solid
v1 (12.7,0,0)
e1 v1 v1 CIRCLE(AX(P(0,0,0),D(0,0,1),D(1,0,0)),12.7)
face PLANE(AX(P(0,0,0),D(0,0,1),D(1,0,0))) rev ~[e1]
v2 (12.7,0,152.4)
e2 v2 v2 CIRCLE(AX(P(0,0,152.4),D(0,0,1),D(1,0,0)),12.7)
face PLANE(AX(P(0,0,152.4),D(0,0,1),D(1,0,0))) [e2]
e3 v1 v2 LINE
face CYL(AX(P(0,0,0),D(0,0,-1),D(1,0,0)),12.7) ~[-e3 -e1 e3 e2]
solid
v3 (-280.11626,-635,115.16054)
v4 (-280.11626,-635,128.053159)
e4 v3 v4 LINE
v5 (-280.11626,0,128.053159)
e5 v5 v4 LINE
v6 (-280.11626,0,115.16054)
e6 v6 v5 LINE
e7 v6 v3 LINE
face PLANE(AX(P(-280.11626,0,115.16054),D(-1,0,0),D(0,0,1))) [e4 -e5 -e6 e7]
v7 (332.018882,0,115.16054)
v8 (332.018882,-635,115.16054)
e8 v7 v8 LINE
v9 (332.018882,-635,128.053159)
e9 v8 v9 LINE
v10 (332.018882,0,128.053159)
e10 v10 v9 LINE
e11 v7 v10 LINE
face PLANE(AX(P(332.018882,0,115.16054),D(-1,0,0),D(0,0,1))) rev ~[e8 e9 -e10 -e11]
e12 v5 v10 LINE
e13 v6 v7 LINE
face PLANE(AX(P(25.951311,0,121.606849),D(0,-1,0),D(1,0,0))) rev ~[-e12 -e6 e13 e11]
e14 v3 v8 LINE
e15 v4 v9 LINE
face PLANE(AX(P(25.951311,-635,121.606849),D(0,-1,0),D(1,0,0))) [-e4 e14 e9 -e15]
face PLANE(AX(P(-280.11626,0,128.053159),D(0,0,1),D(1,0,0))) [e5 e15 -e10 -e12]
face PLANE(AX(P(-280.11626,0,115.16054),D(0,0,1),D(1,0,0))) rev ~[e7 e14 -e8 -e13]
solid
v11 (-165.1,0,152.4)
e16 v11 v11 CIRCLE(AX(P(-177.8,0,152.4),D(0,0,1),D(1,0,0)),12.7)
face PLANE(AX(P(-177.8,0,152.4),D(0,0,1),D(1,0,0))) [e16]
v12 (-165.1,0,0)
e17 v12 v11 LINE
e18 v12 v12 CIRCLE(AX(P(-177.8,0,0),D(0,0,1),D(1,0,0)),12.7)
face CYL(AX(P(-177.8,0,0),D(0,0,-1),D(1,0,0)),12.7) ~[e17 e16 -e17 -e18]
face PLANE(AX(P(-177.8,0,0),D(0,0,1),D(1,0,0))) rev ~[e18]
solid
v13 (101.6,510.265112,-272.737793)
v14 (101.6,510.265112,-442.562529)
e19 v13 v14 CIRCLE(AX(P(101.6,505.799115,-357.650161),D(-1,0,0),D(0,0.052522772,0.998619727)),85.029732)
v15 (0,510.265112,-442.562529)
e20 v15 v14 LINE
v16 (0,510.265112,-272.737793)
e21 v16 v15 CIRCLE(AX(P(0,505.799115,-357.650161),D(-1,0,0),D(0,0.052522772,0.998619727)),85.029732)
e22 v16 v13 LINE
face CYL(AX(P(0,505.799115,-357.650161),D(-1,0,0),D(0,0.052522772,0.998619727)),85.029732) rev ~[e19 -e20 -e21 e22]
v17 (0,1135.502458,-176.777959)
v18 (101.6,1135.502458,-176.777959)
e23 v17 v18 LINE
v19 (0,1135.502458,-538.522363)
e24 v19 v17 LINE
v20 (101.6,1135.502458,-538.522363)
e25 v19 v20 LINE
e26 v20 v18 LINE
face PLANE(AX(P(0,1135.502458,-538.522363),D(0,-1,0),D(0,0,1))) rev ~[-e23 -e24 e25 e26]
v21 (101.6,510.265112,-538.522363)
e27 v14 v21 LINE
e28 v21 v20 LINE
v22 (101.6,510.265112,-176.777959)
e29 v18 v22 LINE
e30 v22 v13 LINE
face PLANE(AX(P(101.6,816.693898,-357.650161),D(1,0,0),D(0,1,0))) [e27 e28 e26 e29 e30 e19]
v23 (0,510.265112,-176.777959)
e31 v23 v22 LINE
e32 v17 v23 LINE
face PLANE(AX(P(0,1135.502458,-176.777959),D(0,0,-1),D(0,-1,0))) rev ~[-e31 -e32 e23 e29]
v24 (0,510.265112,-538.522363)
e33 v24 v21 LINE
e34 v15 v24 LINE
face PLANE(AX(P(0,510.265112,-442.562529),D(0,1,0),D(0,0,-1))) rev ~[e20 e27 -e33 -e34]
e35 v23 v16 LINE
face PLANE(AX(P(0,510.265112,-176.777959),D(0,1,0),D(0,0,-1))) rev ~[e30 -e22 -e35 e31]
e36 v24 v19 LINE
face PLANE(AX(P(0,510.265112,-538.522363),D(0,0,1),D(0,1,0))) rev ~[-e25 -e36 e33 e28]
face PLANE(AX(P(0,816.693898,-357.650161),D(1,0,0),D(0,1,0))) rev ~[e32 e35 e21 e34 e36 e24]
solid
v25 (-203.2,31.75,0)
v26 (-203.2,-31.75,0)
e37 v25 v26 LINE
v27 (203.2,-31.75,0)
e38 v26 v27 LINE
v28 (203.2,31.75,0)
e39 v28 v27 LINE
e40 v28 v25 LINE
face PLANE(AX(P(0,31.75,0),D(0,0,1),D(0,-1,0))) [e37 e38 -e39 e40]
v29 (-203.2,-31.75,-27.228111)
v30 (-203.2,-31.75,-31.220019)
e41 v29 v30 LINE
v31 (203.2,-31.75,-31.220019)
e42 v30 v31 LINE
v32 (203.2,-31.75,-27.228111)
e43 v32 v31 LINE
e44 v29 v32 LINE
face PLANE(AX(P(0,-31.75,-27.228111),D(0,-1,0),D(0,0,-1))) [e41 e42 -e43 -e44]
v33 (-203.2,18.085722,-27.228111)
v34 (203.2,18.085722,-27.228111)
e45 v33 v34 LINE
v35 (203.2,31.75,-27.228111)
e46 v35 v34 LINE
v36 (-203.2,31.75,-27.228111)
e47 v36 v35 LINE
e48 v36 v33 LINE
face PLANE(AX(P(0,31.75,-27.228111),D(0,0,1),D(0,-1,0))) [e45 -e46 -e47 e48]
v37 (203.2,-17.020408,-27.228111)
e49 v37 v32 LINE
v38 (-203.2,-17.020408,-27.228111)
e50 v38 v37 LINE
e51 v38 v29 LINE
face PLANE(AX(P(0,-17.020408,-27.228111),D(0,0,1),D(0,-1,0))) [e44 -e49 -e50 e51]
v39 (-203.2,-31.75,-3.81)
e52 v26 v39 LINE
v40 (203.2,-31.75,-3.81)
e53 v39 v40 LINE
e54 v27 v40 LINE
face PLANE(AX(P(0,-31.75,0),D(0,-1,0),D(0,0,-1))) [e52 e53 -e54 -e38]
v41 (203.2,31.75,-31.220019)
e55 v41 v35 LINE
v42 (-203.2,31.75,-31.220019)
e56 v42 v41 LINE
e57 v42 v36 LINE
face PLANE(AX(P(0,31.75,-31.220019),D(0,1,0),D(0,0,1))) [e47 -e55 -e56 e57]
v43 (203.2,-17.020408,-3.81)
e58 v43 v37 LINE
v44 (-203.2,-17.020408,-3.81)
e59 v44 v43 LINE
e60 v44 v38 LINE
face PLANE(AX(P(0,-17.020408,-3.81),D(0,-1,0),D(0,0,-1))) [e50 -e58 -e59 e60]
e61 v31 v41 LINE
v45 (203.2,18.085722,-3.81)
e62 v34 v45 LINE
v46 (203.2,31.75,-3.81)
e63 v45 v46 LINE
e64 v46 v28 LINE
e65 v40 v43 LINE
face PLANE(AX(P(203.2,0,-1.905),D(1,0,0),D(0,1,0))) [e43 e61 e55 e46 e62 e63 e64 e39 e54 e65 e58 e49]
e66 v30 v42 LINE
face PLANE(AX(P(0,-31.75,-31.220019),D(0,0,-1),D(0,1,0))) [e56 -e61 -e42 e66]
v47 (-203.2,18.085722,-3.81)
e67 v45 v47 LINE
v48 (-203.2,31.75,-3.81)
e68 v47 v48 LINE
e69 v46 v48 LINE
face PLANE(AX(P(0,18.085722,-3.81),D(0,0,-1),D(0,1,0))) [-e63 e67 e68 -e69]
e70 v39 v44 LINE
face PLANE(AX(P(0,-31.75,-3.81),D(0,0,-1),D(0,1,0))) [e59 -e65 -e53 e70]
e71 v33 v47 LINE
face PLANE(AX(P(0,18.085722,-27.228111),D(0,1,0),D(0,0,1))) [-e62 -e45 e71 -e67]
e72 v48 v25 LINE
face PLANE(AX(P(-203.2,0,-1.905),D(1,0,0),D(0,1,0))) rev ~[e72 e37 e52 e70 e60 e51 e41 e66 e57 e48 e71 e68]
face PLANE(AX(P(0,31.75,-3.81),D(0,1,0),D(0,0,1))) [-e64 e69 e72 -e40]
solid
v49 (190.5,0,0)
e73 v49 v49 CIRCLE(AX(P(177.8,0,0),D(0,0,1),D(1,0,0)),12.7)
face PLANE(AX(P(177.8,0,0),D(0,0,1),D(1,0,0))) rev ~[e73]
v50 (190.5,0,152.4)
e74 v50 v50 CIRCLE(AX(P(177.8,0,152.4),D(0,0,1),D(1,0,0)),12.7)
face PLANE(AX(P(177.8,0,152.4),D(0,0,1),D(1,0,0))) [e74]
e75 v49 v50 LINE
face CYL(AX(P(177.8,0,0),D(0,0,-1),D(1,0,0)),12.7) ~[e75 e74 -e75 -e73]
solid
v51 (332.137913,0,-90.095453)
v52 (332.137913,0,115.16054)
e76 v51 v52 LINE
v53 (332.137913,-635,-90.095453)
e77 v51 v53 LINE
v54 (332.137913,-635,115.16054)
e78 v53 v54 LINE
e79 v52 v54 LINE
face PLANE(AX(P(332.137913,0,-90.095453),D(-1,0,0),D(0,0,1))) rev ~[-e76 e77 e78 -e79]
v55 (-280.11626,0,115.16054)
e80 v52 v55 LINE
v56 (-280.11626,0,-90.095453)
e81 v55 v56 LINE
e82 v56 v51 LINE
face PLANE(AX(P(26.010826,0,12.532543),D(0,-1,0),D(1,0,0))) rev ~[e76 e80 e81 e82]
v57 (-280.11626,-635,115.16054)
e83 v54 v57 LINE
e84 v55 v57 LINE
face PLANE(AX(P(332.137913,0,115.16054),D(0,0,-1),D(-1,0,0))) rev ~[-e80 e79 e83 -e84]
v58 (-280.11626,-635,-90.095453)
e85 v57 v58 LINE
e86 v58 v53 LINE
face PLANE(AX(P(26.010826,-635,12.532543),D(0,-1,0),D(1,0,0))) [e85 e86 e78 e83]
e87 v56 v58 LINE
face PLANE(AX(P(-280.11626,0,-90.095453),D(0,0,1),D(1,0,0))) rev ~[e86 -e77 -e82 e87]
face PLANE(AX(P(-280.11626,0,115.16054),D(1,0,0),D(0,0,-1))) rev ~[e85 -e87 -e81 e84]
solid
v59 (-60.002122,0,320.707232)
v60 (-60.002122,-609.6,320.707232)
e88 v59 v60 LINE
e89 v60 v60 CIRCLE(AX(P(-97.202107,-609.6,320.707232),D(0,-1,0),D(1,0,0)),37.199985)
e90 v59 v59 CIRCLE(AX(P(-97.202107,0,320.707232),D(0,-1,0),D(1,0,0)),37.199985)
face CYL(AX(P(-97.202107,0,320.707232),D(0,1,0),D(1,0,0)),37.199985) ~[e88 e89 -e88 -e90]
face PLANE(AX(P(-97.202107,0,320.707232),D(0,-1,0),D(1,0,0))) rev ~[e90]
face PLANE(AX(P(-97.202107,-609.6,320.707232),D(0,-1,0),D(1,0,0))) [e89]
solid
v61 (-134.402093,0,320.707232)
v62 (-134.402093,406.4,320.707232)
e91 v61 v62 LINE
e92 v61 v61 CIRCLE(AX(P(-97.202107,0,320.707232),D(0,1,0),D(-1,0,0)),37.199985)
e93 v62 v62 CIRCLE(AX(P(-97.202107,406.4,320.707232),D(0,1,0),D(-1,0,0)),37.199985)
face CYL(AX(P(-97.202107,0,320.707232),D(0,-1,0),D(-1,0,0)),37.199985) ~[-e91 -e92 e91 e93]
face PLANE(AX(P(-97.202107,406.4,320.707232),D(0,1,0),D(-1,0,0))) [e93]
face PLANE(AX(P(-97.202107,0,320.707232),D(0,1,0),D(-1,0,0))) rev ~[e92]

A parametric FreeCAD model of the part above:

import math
import FreeCAD as App
import Part
import Sketcher
Q = App.Units.Quantity

doc = App.newDocument("Part")
params = doc.addObject("Spreadsheet::Sheet", "Params")
for row, (alias, value) in enumerate([
    ("sketch1_diameter", "1 in"),
    ("pad1_length", "6 in"),
    ("sketch2_diameter", "1 in"),
    ("pad2_length", "6 in"),
    ("sketch3_diameter", "1 in"),
    ("pad3_length", "6 in"),
    ("sketch4_width", "2.5 in"),
    ("sketch4_height", "0.15 in"),
    ("pad4_length", "16 in"),
    ("pad5_length", "24 in"),
    ("pad6_length", "16 in"),
    ("pad7_length", "25 in"),
    ("pad8_length", "25 in"),
    ("pad9_length", "4 in"),
], start=1):
    params.set(f"A{row}", alias)
    params.set(f"B{row}", "=" + value)
    params.setAlias(f"B{row}", alias)

body = doc.addObject("PartDesign::Body", "Body")

# Sketch on XY plane
sketch1 = doc.addObject("Sketcher::SketchObject", "Sketch")
body.addObject(sketch1)
sketch1.AttachmentSupport = (doc.XY_Plane, [""])
sketch1.MapMode = "FlatFace"
sketch1.addGeometry(Part.Circle(App.Vector(-178, 0, 0), App.Vector(0, 0, 1), 13), False)
sketch1.addConstraint(Sketcher.Constraint("PointOnObject", 0, 3, -1))
sketch1.addConstraint(Sketcher.Constraint("Diameter", 0, Q("1 in")))
sketch1.addConstraint(Sketcher.Constraint("DistanceX", 0, 3, -1, 1, Q("7 in")))
sketch1.setExpression("Constraints[1]", "Params.sketch1_diameter")
pad1 = doc.addObject("PartDesign::Pad", "Pad")
body.addObject(pad1)
pad1.Profile = sketch1
pad1.setExpression("Length", "Params.pad1_length")
body2 = doc.addObject("PartDesign::Body", "Body001")

# Sketch on XY plane
sketch2 = doc.addObject("Sketcher::SketchObject", "Sketch001")
body2.addObject(sketch2)
sketch2.AttachmentSupport = (doc.getObject("XY_Plane001"), [""])
sketch2.MapMode = "FlatFace"
sketch2.addGeometry(Part.Circle(App.Vector(178, 0, 0), App.Vector(0, 0, 1), 13), False)
sketch2.addConstraint(Sketcher.Constraint("PointOnObject", 0, 3, -1))
sketch2.addConstraint(Sketcher.Constraint("Diameter", 0, Q("1 in")))
sketch2.addConstraint(Sketcher.Constraint("DistanceX", -1, 1, 0, 3, Q("7 in")))
sketch2.setExpression("Constraints[1]", "Params.sketch2_diameter")
pad2 = doc.addObject("PartDesign::Pad", "Pad001")
body2.addObject(pad2)
pad2.Profile = sketch2
pad2.setExpression("Length", "Params.pad2_length")
body3 = doc.addObject("PartDesign::Body", "Body002")

# Sketch on XY plane
sketch3 = doc.addObject("Sketcher::SketchObject", "Sketch002")
body3.addObject(sketch3)
sketch3.AttachmentSupport = (doc.getObject("XY_Plane002"), [""])
sketch3.MapMode = "FlatFace"
sketch3.addGeometry(Part.Circle(App.Vector(0, 0, 0), App.Vector(0, 0, 1), 13), False)
sketch3.addConstraint(Sketcher.Constraint("Coincident", 0, 3, -1, 1))
sketch3.addConstraint(Sketcher.Constraint("Diameter", 0, Q("1 in")))
sketch3.setExpression("Constraints[1]", "Params.sketch3_diameter")
pad3 = doc.addObject("PartDesign::Pad", "Pad002")
body3.addObject(pad3)
pad3.Profile = sketch3
pad3.setExpression("Length", "Params.pad3_length")
body4 = doc.addObject("PartDesign::Body", "Body003")

# Sketch on YZ plane
sketch4 = doc.addObject("Sketcher::SketchObject", "Sketch003")
body4.addObject(sketch4)
sketch4.AttachmentSupport = (doc.getObject("YZ_Plane003"), [""])
sketch4.MapMode = "FlatFace"
sketch4.addGeometry(Part.LineSegment(App.Vector(31.8, 0, 0), App.Vector(-31.8, 0, 0)), False)
sketch4.addGeometry(Part.LineSegment(App.Vector(-31.8, 0, 0), App.Vector(-31.8, -3.8, 0)), False)
sketch4.addGeometry(Part.LineSegment(App.Vector(-31.8, -3.8, 0), App.Vector(-17, -3.8, 0)), False)
sketch4.addGeometry(Part.LineSegment(App.Vector(-17, -3.8, 0), App.Vector(-17, -27.2, 0)), False)
sketch4.addGeometry(Part.LineSegment(App.Vector(-17, -27.2, 0), App.Vector(-31.8, -27.2, 0)), False)
sketch4.addGeometry(Part.LineSegment(App.Vector(-31.8, -27.2, 0), App.Vector(-31.8, -31.2, 0)), False)
sketch4.addGeometry(Part.LineSegment(App.Vector(-31.8, -31.2, 0), App.Vector(31.8, -31.2, 0)), False)
sketch4.addGeometry(Part.LineSegment(App.Vector(31.8, -31.2, 0), App.Vector(31.8, -27.2, 0)), False)
sketch4.addGeometry(Part.LineSegment(App.Vector(31.8, -27.2, 0), App.Vector(18.1, -27.2, 0)), False)
sketch4.addGeometry(Part.LineSegment(App.Vector(18.1, -27.2, 0), App.Vector(18.1, -3.8, 0)), False)
sketch4.addGeometry(Part.LineSegment(App.Vector(18.1, -3.8, 0), App.Vector(31.8, -3.8, 0)), False)
sketch4.addGeometry(Part.LineSegment(App.Vector(31.8, -3.8, 0), App.Vector(31.8, 0, 0)), False)
sketch4.addConstraint(Sketcher.Constraint("Coincident", 0, 2, 1, 1))
sketch4.addConstraint(Sketcher.Constraint("Coincident", 1, 2, 2, 1))
sketch4.addConstraint(Sketcher.Constraint("Coincident", 2, 2, 3, 1))
sketch4.addConstraint(Sketcher.Constraint("Coincident", 3, 2, 4, 1))
sketch4.addConstraint(Sketcher.Constraint("Coincident", 4, 2, 5, 1))
sketch4.addConstraint(Sketcher.Constraint("Coincident", 5, 2, 6, 1))
sketch4.addConstraint(Sketcher.Constraint("Coincident", 6, 2, 7, 1))
sketch4.addConstraint(Sketcher.Constraint("Coincident", 7, 2, 8, 1))
sketch4.addConstraint(Sketcher.Constraint("Coincident", 8, 2, 9, 1))
sketch4.addConstraint(Sketcher.Constraint("Coincident", 9, 2, 10, 1))
sketch4.addConstraint(Sketcher.Constraint("Coincident", 10, 2, 11, 1))
sketch4.addConstraint(Sketcher.Constraint("Coincident", 11, 2, 0, 1))
sketch4.addConstraint(Sketcher.Constraint("Horizontal", 0))
sketch4.addConstraint(Sketcher.Constraint("Vertical", 1))
sketch4.addConstraint(Sketcher.Constraint("Horizontal", 2))
sketch4.addConstraint(Sketcher.Constraint("Vertical", 3))
sketch4.addConstraint(Sketcher.Constraint("Horizontal", 4))
sketch4.addConstraint(Sketcher.Constraint("Vertical", 5))
sketch4.addConstraint(Sketcher.Constraint("Horizontal", 6))
sketch4.addConstraint(Sketcher.Constraint("Vertical", 7))
sketch4.addConstraint(Sketcher.Constraint("Horizontal", 8))
sketch4.addConstraint(Sketcher.Constraint("Vertical", 9))
sketch4.addConstraint(Sketcher.Constraint("Horizontal", 10))
sketch4.addConstraint(Sketcher.Constraint("Vertical", 11))
sketch4.addConstraint(Sketcher.Constraint("Symmetric", 0, 2, 11, 2, -1, 1))
sketch4.addConstraint(Sketcher.Constraint("Symmetric", 4, 2, 7, 2, -2))
sketch4.addConstraint(Sketcher.Constraint("Horizontal", 2, 2, 9, 2))
sketch4.addConstraint(Sketcher.Constraint("Vertical", 1, 2, 4, 2))
sketch4.addConstraint(Sketcher.Constraint("DistanceX", 0, 2, 0, 1, Q("2.5 in")))
sketch4.addConstraint(Sketcher.Constraint("DistanceY", 1, 2, 1, 1, Q("0.15 in")))
sketch4.addConstraint(Sketcher.Constraint("DistanceX", 2, 1, 2, 2, Q("14.729592 mm")))
sketch4.addConstraint(Sketcher.Constraint("DistanceX", 8, 2, 8, 1, Q("13.664278 mm")))
sketch4.addConstraint(Sketcher.Constraint("DistanceY", 3, 2, 3, 1, Q("23.418111 mm")))
sketch4.addConstraint(Sketcher.Constraint("DistanceY", 5, 2, 5, 1, Q("3.991907 mm")))
sketch4.setExpression("Constraints[28]", "Params.sketch4_width")
sketch4.setExpression("Constraints[29]", "Params.sketch4_height")
pad4 = doc.addObject("PartDesign::Pad", "Pad003")
body4.addObject(pad4)
pad4.Profile = sketch4
pad4.setExpression("Length", "Params.pad4_length")
pad4.Midplane = True
body5 = doc.addObject("PartDesign::Body", "Body004")

# Sketch on XZ plane
sketch5 = doc.addObject("Sketcher::SketchObject", "Sketch004")
body5.addObject(sketch5)
sketch5.AttachmentSupport = (doc.getObject("XZ_Plane004"), [""])
sketch5.MapMode = "FlatFace"
sketch5.addGeometry(Part.Circle(App.Vector(-97, 321, 0), App.Vector(0, 0, 1), 37), False)
sketch5.addConstraint(Sketcher.Constraint("Diameter", 0, Q("74.399971 mm")))
sketch5.addConstraint(Sketcher.Constraint("DistanceY", -1, 1, 0, 3, Q("320.707232 mm")))
sketch5.addConstraint(Sketcher.Constraint("DistanceX", 0, 3, -1, 1, Q("97.202107 mm")))
pad5 = doc.addObject("PartDesign::Pad", "Pad004")
body5.addObject(pad5)
pad5.Profile = sketch5
pad5.setExpression("Length", "Params.pad5_length")
body6 = doc.addObject("PartDesign::Body", "Body005")

# Sketch on XZ plane
sketch6 = doc.addObject("Sketcher::SketchObject", "Sketch005")
body6.addObject(sketch6)
sketch6.AttachmentSupport = (doc.getObject("XZ_Plane005"), [""])
sketch6.MapMode = "FlatFace"
sketch6.addGeometry(Part.Circle(App.Vector(-97, 321, 0), App.Vector(0, 0, 1), 37), False)
sketch6.addConstraint(Sketcher.Constraint("Diameter", 0, Q("74.399971 mm")))
sketch6.addConstraint(Sketcher.Constraint("DistanceY", -1, 1, 0, 3, Q("320.707232 mm")))
sketch6.addConstraint(Sketcher.Constraint("DistanceX", 0, 3, -1, 1, Q("97.202107 mm")))
pad6 = doc.addObject("PartDesign::Pad", "Pad005")
body6.addObject(pad6)
pad6.Profile = sketch6
pad6.setExpression("Length", "Params.pad6_length")
pad6.Reversed = True
body7 = doc.addObject("PartDesign::Body", "Body006")

# Sketch on XZ plane
sketch7 = doc.addObject("Sketcher::SketchObject", "Sketch006")
body7.addObject(sketch7)
sketch7.AttachmentSupport = (doc.getObject("XZ_Plane006"), [""])
sketch7.MapMode = "FlatFace"
sketch7.addGeometry(Part.LineSegment(App.Vector(332, -90, 0), App.Vector(332, 115, 0)), False)
sketch7.addGeometry(Part.LineSegment(App.Vector(332, 115, 0), App.Vector(-280, 115, 0)), False)
sketch7.addGeometry(Part.LineSegment(App.Vector(-280, 115, 0), App.Vector(-280, -90, 0)), False)
sketch7.addGeometry(Part.LineSegment(App.Vector(-280, -90, 0), App.Vector(332, -90, 0)), False)
sketch7.addConstraint(Sketcher.Constraint("Coincident", 0, 2, 1, 1))
sketch7.addConstraint(Sketcher.Constraint("Coincident", 1, 2, 2, 1))
sketch7.addConstraint(Sketcher.Constraint("Coincident", 2, 2, 3, 1))
sketch7.addConstraint(Sketcher.Constraint("Coincident", 3, 2, 0, 1))
sketch7.addConstraint(Sketcher.Constraint("Vertical", 0))
sketch7.addConstraint(Sketcher.Constraint("Horizontal", 1))
sketch7.addConstraint(Sketcher.Constraint("Vertical", 2))
sketch7.addConstraint(Sketcher.Constraint("Horizontal", 3))
sketch7.addConstraint(Sketcher.Constraint("DistanceX", 1, 2, 1, 1, Q("612.254173 mm")))
sketch7.addConstraint(Sketcher.Constraint("DistanceY", 0, 1, 0, 2, Q("205.255993 mm")))
sketch7.addConstraint(Sketcher.Constraint("DistanceY", -1, 1, 0, 2, Q("115.16054 mm")))
sketch7.addConstraint(Sketcher.Constraint("DistanceX", 1, 2, -1, 1, Q("280.11626 mm")))
pad7 = doc.addObject("PartDesign::Pad", "Pad006")
body7.addObject(pad7)
pad7.Profile = sketch7
pad7.setExpression("Length", "Params.pad7_length")
body8 = doc.addObject("PartDesign::Body", "Body007")

# Sketch on XZ plane
sketch8 = doc.addObject("Sketcher::SketchObject", "Sketch007")
body8.addObject(sketch8)
sketch8.AttachmentSupport = (doc.getObject("XZ_Plane007"), [""])
sketch8.MapMode = "FlatFace"
sketch8.addGeometry(Part.LineSegment(App.Vector(-280, 128, 0), App.Vector(-280, 115, 0)), False)
sketch8.addGeometry(Part.LineSegment(App.Vector(-280, 115, 0), App.Vector(332, 115, 0)), False)
sketch8.addGeometry(Part.LineSegment(App.Vector(332, 115, 0), App.Vector(332, 128, 0)), False)
sketch8.addGeometry(Part.LineSegment(App.Vector(332, 128, 0), App.Vector(-280, 128, 0)), False)
sketch8.addConstraint(Sketcher.Constraint("Coincident", 0, 2, 1, 1))
sketch8.addConstraint(Sketcher.Constraint("Coincident", 1, 2, 2, 1))
sketch8.addConstraint(Sketcher.Constraint("Coincident", 2, 2, 3, 1))
sketch8.addConstraint(Sketcher.Constraint("Coincident", 3, 2, 0, 1))
sketch8.addConstraint(Sketcher.Constraint("Vertical", 0))
sketch8.addConstraint(Sketcher.Constraint("Horizontal", 1))
sketch8.addConstraint(Sketcher.Constraint("Vertical", 2))
sketch8.addConstraint(Sketcher.Constraint("Horizontal", 3))
sketch8.addConstraint(Sketcher.Constraint("DistanceY", 0, 2, 0, 1, Q("12.892619 mm")))
sketch8.addConstraint(Sketcher.Constraint("DistanceX", 1, 1, 1, 2, Q("612.135142 mm")))
sketch8.addConstraint(Sketcher.Constraint("DistanceX", 0, 2, -1, 1, Q("280.11626 mm")))
sketch8.addConstraint(Sketcher.Constraint("DistanceY", -1, 1, 0, 2, Q("115.16054 mm")))
pad8 = doc.addObject("PartDesign::Pad", "Pad007")
body8.addObject(pad8)
pad8.Profile = sketch8
pad8.setExpression("Length", "Params.pad8_length")
body9 = doc.addObject("PartDesign::Body", "Body008")

# Sketch on YZ plane
sketch9 = doc.addObject("Sketcher::SketchObject", "Sketch008")
body9.addObject(sketch9)
sketch9.AttachmentSupport = (doc.getObject("YZ_Plane008"), [""])
sketch9.MapMode = "FlatFace"
sketch9.addGeometry(Part.LineSegment(App.Vector(1136, -177, 0), App.Vector(510, -177, 0)), False)
sketch9.addGeometry(Part.LineSegment(App.Vector(510, -177, 0), App.Vector(510, -273, 0)), False)
sketch9.addGeometry(Part.ArcOfCircle(Part.Circle(App.Vector(506, -358, 0), App.Vector(0, 0, 1), 85), math.radians(-87), math.radians(87)), False)
sketch9.addGeometry(Part.LineSegment(App.Vector(510, -443, 0), App.Vector(510, -539, 0)), False)
sketch9.addGeometry(Part.LineSegment(App.Vector(510, -539, 0), App.Vector(1136, -539, 0)), False)
sketch9.addGeometry(Part.LineSegment(App.Vector(1136, -539, 0), App.Vector(1136, -177, 0)), False)
sketch9.addConstraint(Sketcher.Constraint("Coincident", 0, 2, 1, 1))
sketch9.addConstraint(Sketcher.Constraint("Coincident", 1, 2, 2, 2))
sketch9.addConstraint(Sketcher.Constraint("Coincident", 2, 1, 3, 1))
sketch9.addConstraint(Sketcher.Constraint("Coincident", 3, 2, 4, 1))
sketch9.addConstraint(Sketcher.Constraint("Coincident", 4, 2, 5, 1))
sketch9.addConstraint(Sketcher.Constraint("Coincident", 5, 2, 0, 1))
sketch9.addConstraint(Sketcher.Constraint("Horizontal", 0))
sketch9.addConstraint(Sketcher.Constraint("Vertical", 1))
sketch9.addConstraint(Sketcher.Constraint("Vertical", 3))
sketch9.addConstraint(Sketcher.Constraint("Horizontal", 4))
sketch9.addConstraint(Sketcher.Constraint("Vertical", 5))
sketch9.addConstraint(Sketcher.Constraint("Vertical", 1, 2, 2, 1))
sketch9.addConstraint(Sketcher.Constraint("Equal", 1, 3))
sketch9.addConstraint(Sketcher.Constraint("Radius", 2, Q("85.029732 mm")))
sketch9.addConstraint(Sketcher.Constraint("DistanceY", 2, 3, 0, 2, Q("180.872202 mm")))
sketch9.addConstraint(Sketcher.Constraint("DistanceX", 0, 2, 0, 1, Q("625.237346 mm")))
sketch9.addConstraint(Sketcher.Constraint("DistanceY", 1, 2, 1, 1, Q("95.959834 mm")))
sketch9.addConstraint(Sketcher.Constraint("DistanceY", 2, 3, -1, 1, Q("357.650161 mm")))
sketch9.addConstraint(Sketcher.Constraint("DistanceX", -1, 1, 0, 2, Q("510.265112 mm")))
pad9 = doc.addObject("PartDesign::Pad", "Pad008")
body9.addObject(pad9)
pad9.Profile = sketch9
pad9.setExpression("Length", "Params.pad9_length")

doc.recompute()
